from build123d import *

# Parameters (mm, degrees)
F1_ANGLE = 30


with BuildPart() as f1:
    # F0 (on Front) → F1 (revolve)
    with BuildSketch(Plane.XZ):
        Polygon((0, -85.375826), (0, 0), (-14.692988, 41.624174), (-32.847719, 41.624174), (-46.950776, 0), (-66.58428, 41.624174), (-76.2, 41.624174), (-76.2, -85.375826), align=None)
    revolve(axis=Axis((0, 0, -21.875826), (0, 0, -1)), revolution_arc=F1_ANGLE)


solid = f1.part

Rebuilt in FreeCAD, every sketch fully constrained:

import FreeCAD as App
import Part
import Sketcher
Q = App.Units.Quantity

doc = App.newDocument("Part")
body = doc.addObject("PartDesign::Body", "Body")

sketch1 = body.newObject("Sketcher::SketchObject", "Sketch")
sketch1.AttachmentSupport = (doc.getObject("XZ_Plane"), [""])
sketch1.MapMode = "FlatFace"
sketch1.addGeometry([
    Part.LineSegment(App.Vector(0, -85, 0), App.Vector(0, 0, 0)),
    Part.LineSegment(App.Vector(0, 0, 0), App.Vector(-15, 42, 0)),
    Part.LineSegment(App.Vector(-15, 42, 0), App.Vector(-33, 42, 0)),
    Part.LineSegment(App.Vector(-33, 42, 0), App.Vector(-47, 0, 0)),
    Part.LineSegment(App.Vector(-47, 0, 0), App.Vector(-67, 42, 0)),
    Part.LineSegment(App.Vector(-67, 42, 0), App.Vector(-76, 42, 0)),
    Part.LineSegment(App.Vector(-76, 42, 0), App.Vector(-76, -85, 0)),
    Part.LineSegment(App.Vector(-76, -85, 0), App.Vector(0, -85, 0)),
], False)
sketch1.addConstraint([
    Sketcher.Constraint("Coincident", 0, 2, 1, 1),
    Sketcher.Constraint("Coincident", 1, 2, 2, 1),
    Sketcher.Constraint("Coincident", 2, 2, 3, 1),
    Sketcher.Constraint("Coincident", 3, 2, 4, 1),
    Sketcher.Constraint("Coincident", 4, 2, 5, 1),
    Sketcher.Constraint("Coincident", 5, 2, 6, 1),
    Sketcher.Constraint("Coincident", 6, 2, 7, 1),
    Sketcher.Constraint("Coincident", 7, 2, 0, 1),
    Sketcher.Constraint("Vertical", 0),
    Sketcher.Constraint("Horizontal", 2),
    Sketcher.Constraint("Horizontal", 5),
    Sketcher.Constraint("Vertical", 6),
    Sketcher.Constraint("Horizontal", 7),
    Sketcher.Constraint("Coincident", 0, 2, -1, 1),
    Sketcher.Constraint("PointOnObject", 3, 2, -1),
    Sketcher.Constraint("Horizontal", 2, 2, 4, 2),
    Sketcher.Constraint("DistanceX", 7, 1, 7, 2, Q("3 in")),
    Sketcher.Constraint("DistanceY", 6, 2, 6, 1, Q("5 in")),
    Sketcher.Constraint("DistanceX", 2, 2, 2, 1, 18.154731),
    Sketcher.Constraint("DistanceX", 5, 2, 5, 1, 9.61572),
    Sketcher.Constraint("Distance", 3, 43.948471),
    Sketcher.Constraint("DistanceY", 0, 1, 0, 2, 85.375826),
    Sketcher.Constraint("DistanceX", 2, 2, -1, 1, 32.847719),
])
revolution = body.newObject("PartDesign::Revolution", "Revolution")
revolution.Profile = sketch1
revolution.ReferenceAxis = (sketch1, ["V_Axis"])
revolution.Angle = 30
revolution.Reversed = True

doc.recompute()
